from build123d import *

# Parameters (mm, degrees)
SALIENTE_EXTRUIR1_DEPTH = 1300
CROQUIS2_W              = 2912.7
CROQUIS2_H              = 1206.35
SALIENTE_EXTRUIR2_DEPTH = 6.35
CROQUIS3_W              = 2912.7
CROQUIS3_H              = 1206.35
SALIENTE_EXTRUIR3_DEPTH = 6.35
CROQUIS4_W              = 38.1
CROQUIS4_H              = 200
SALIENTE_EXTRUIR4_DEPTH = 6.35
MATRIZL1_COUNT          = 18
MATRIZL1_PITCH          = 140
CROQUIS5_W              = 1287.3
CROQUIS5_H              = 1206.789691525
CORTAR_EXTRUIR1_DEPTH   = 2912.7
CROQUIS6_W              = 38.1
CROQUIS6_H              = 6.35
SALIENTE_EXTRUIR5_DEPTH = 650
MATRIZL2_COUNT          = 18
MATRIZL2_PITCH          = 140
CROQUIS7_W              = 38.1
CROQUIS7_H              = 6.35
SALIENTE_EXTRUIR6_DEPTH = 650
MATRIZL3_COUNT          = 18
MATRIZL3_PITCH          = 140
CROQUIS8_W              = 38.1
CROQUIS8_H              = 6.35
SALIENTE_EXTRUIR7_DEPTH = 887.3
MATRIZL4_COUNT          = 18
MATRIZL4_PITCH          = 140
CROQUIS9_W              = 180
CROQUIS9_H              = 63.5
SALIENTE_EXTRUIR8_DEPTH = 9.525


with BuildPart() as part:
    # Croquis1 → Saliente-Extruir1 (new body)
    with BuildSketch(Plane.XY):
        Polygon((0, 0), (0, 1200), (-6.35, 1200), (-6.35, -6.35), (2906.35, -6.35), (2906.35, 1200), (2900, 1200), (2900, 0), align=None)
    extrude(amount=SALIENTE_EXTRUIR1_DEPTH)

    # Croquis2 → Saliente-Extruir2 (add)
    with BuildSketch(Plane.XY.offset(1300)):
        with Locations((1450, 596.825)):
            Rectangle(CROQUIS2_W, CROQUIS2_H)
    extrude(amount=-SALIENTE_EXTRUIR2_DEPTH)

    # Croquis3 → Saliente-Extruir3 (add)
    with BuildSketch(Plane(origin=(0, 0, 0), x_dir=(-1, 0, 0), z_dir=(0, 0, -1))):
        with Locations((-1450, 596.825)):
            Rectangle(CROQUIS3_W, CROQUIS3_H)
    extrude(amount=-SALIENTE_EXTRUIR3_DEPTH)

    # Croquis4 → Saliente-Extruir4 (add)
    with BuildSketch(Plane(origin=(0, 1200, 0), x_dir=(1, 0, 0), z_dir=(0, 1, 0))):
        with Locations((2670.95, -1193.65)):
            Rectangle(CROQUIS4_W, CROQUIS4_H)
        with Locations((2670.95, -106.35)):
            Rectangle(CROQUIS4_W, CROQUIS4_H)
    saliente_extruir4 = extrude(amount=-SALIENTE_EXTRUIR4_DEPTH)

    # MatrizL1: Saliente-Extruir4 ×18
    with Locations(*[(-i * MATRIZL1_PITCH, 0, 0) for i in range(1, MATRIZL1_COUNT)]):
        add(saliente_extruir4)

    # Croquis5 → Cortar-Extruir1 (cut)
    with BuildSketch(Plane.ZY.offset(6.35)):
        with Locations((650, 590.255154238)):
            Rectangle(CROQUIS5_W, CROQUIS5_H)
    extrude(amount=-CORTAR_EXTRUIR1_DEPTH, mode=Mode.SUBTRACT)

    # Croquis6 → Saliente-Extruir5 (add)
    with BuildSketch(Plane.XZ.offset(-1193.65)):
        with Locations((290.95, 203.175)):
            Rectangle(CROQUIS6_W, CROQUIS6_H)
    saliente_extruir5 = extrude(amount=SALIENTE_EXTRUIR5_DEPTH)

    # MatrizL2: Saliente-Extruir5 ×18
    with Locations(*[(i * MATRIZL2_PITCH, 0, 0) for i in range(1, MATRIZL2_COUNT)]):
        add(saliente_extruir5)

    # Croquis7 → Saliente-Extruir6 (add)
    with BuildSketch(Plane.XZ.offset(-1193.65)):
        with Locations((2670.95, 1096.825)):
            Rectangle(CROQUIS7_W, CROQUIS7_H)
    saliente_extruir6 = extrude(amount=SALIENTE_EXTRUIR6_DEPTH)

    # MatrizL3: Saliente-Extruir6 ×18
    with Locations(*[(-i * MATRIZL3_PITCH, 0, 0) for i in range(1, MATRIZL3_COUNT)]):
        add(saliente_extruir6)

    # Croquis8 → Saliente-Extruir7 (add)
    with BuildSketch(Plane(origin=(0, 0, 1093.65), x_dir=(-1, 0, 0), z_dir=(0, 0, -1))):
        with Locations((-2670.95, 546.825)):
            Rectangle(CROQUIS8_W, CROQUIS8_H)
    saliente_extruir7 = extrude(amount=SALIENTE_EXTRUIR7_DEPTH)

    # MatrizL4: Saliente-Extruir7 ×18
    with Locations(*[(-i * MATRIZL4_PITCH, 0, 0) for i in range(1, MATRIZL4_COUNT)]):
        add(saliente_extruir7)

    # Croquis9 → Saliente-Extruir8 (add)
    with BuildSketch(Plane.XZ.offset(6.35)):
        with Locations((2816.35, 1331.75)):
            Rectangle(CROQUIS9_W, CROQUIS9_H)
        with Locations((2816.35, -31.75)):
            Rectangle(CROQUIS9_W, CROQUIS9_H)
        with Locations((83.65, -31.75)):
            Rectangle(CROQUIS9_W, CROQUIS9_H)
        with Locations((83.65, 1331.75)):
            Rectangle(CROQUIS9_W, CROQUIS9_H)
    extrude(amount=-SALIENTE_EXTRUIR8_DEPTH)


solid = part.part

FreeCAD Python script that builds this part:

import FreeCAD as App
import Part
import Sketcher

doc = App.newDocument("Part")
body = doc.addObject("PartDesign::Body", "Body")

sketch1 = doc.addObject("Sketcher::SketchObject", "Sketch")
body.addObject(sketch1)
sketch1.AttachmentSupport = (doc.XY_Plane, [""])
sketch1.MapMode = "FlatFace"
sketch1.addGeometry([
    Part.LineSegment(App.Vector(0, 0, 0), App.Vector(0, 1200, 0)),
    Part.LineSegment(App.Vector(0, 1200, 0), App.Vector(-6, 1200, 0)),
    Part.LineSegment(App.Vector(-6, 1200, 0), App.Vector(-6, -6, 0)),
    Part.LineSegment(App.Vector(-6, -6, 0), App.Vector(2906, -6, 0)),
    Part.LineSegment(App.Vector(2906, -6, 0), App.Vector(2906, 1200, 0)),
    Part.LineSegment(App.Vector(2906, 1200, 0), App.Vector(2900, 1200, 0)),
    Part.LineSegment(App.Vector(2900, 1200, 0), App.Vector(2900, 0, 0)),
    Part.LineSegment(App.Vector(2900, 0, 0), App.Vector(0, 0, 0)),
], False)
sketch1.addConstraint([
    Sketcher.Constraint("Coincident", 0, 2, 1, 1),
    Sketcher.Constraint("Coincident", 1, 2, 2, 1),
    Sketcher.Constraint("Coincident", 2, 2, 3, 1),
    Sketcher.Constraint("Coincident", 3, 2, 4, 1),
    Sketcher.Constraint("Coincident", 4, 2, 5, 1),
    Sketcher.Constraint("Coincident", 5, 2, 6, 1),
    Sketcher.Constraint("Coincident", 6, 2, 7, 1),
    Sketcher.Constraint("Coincident", 7, 2, 0, 1),
    Sketcher.Constraint("Vertical", 0),
    Sketcher.Constraint("Horizontal", 1),
    Sketcher.Constraint("Vertical", 2),
    Sketcher.Constraint("Horizontal", 3),
    Sketcher.Constraint("Vertical", 4),
    Sketcher.Constraint("Horizontal", 5),
    Sketcher.Constraint("Vertical", 6),
    Sketcher.Constraint("Horizontal", 7),
    Sketcher.Constraint("Coincident", 7, 2, -1, 1),
    Sketcher.Constraint("Horizontal", 1, 2, 4, 2),
    Sketcher.Constraint("Equal", 1, 5),
    Sketcher.Constraint("DistanceX", 7, 2, 7, 1, 2900.0),
    Sketcher.Constraint("DistanceY", 0, 1, 0, 2, 1200.0),
    Sketcher.Constraint("DistanceX", 3, 1, 3, 2, 2912.7),
    Sketcher.Constraint("DistanceY", 2, 2, 2, 1, 1206.35),
])
pad1 = doc.addObject("PartDesign::Pad", "Pad")
body.addObject(pad1)
pad1.Profile = sketch1
pad1.Length = 1300

sketch2 = doc.addObject("Sketcher::SketchObject", "Sketch001")
body.addObject(sketch2)
sketch2.AttachmentSupport = (doc.XY_Plane, [""])
sketch2.MapMode = "FlatFace"
sketch2.AttachmentOffset = App.Placement(App.Vector(0, 0, 1300), App.Rotation())
sketch2.addGeometry([
    Part.LineSegment(App.Vector(-6, 1200, 0), App.Vector(-6, -6, 0)),
    Part.LineSegment(App.Vector(-6, -6, 0), App.Vector(2906, -6, 0)),
    Part.LineSegment(App.Vector(2906, -6, 0), App.Vector(2906, 1200, 0)),
    Part.LineSegment(App.Vector(2906, 1200, 0), App.Vector(-6, 1200, 0)),
], False)
sketch2.addConstraint([
    Sketcher.Constraint("Coincident", 0, 2, 1, 1),
    Sketcher.Constraint("Coincident", 1, 2, 2, 1),
    Sketcher.Constraint("Coincident", 2, 2, 3, 1),
    Sketcher.Constraint("Coincident", 3, 2, 0, 1),
    Sketcher.Constraint("Vertical", 0),
    Sketcher.Constraint("Horizontal", 1),
    Sketcher.Constraint("Vertical", 2),
    Sketcher.Constraint("Horizontal", 3),
    Sketcher.Constraint("DistanceX", 1, 1, 1, 2, 2912.7),
    Sketcher.Constraint("DistanceY", -1, 1, 2, 2, 1200.0),
    Sketcher.Constraint("DistanceY", 0, 2, 0, 1, 1206.35),
    Sketcher.Constraint("DistanceX", 0, 2, -1, 1, 6.35),
])
pad2 = doc.addObject("PartDesign::Pad", "Pad001")
body.addObject(pad2)
pad2.Profile = sketch2
pad2.Length = 6.35
pad2.Reversed = True

sketch3 = doc.addObject("Sketcher::SketchObject", "Sketch002")
body.addObject(sketch3)
sketch3.AttachmentSupport = (doc.XY_Plane, [""])
sketch3.MapMode = "FlatFace"
sketch3.addGeometry([
    Part.LineSegment(App.Vector(2906, 1200, 0), App.Vector(2906, -6, 0)),
    Part.LineSegment(App.Vector(2906, -6, 0), App.Vector(-6, -6, 0)),
    Part.LineSegment(App.Vector(-6, -6, 0), App.Vector(-6, 1200, 0)),
    Part.LineSegment(App.Vector(-6, 1200, 0), App.Vector(2906, 1200, 0)),
], False)
sketch3.addConstraint([
    Sketcher.Constraint("Coincident", 0, 2, 1, 1),
    Sketcher.Constraint("Coincident", 1, 2, 2, 1),
    Sketcher.Constraint("Coincident", 2, 2, 3, 1),
    Sketcher.Constraint("Coincident", 3, 2, 0, 1),
    Sketcher.Constraint("Vertical", 0),
    Sketcher.Constraint("Horizontal", 1),
    Sketcher.Constraint("Vertical", 2),
    Sketcher.Constraint("Horizontal", 3),
    Sketcher.Constraint("DistanceX", 1, 2, 1, 1, 2912.7),
    Sketcher.Constraint("DistanceY", -1, 1, 2, 2, 1200.0),
    Sketcher.Constraint("DistanceY", 0, 2, 0, 1, 1206.35),
    Sketcher.Constraint("DistanceX", -1, 1, 0, 2, 2906.35),
])
pad3 = doc.addObject("PartDesign::Pad", "Pad002")
body.addObject(pad3)
pad3.Profile = sketch3
pad3.Length = 6.35

sketch4 = doc.addObject("Sketcher::SketchObject", "Sketch003")
body.addObject(sketch4)
sketch4.AttachmentSupport = (doc.XZ_Plane, [""])
sketch4.MapMode = "FlatFace"
sketch4.AttachmentOffset = App.Placement(App.Vector(0, 0, -1200), App.Rotation())
sketch4.addGeometry([
    Part.LineSegment(App.Vector(2652, 1094, 0), App.Vector(2652, 1294, 0)),
    Part.LineSegment(App.Vector(2652, 1294, 0), App.Vector(2690, 1294, 0)),
    Part.LineSegment(App.Vector(2690, 1294, 0), App.Vector(2690, 1094, 0)),
    Part.LineSegment(App.Vector(2690, 1094, 0), App.Vector(2652, 1094, 0)),
    Part.LineSegment(App.Vector(2652, 6, 0), App.Vector(2652, 206, 0)),
    Part.LineSegment(App.Vector(2652, 206, 0), App.Vector(2690, 206, 0)),
    Part.LineSegment(App.Vector(2690, 206, 0), App.Vector(2690, 6, 0)),
    Part.LineSegment(App.Vector(2690, 6, 0), App.Vector(2652, 6, 0)),
], False)
sketch4.addConstraint([
    Sketcher.Constraint("Coincident", 0, 2, 1, 1),
    Sketcher.Constraint("Coincident", 1, 2, 2, 1),
    Sketcher.Constraint("Coincident", 2, 2, 3, 1),
    Sketcher.Constraint("Coincident", 3, 2, 0, 1),
    Sketcher.Constraint("Coincident", 4, 2, 5, 1),
    Sketcher.Constraint("Coincident", 5, 2, 6, 1),
    Sketcher.Constraint("Coincident", 6, 2, 7, 1),
    Sketcher.Constraint("Coincident", 7, 2, 4, 1),
    Sketcher.Constraint("Vertical", 0),
    Sketcher.Constraint("Horizontal", 1),
    Sketcher.Constraint("Vertical", 2),
    Sketcher.Constraint("Horizontal", 3),
    Sketcher.Constraint("Vertical", 4),
    Sketcher.Constraint("Horizontal", 5),
    Sketcher.Constraint("Vertical", 6),
    Sketcher.Constraint("Horizontal", 7),
    Sketcher.Constraint("Vertical", 3, 2, 4, 2),
    Sketcher.Constraint("Vertical", 2, 2, 5, 2),
    Sketcher.Constraint("Equal", 2, 4),
    Sketcher.Constraint("DistanceY", 0, 1, 0, 2, 200.0),
    Sketcher.Constraint("DistanceX", 1, 1, 1, 2, 38.1),
    Sketcher.Constraint("DistanceX", -1, 1, 1, 2, 2690.0),
    Sketcher.Constraint("DistanceY", 4, 2, 3, 2, 887.3),
    Sketcher.Constraint("DistanceY", -1, 1, 0, 2, 1293.65),
])
pad4 = doc.addObject("PartDesign::Pad", "Pad003")
body.addObject(pad4)
pad4.Profile = sketch4
pad4.Length = 6.35
doc.recompute()

linearpattern = doc.addObject("PartDesign::LinearPattern", "LinearPattern")
body.addObject(linearpattern)
linearpattern.Originals = [pad4]
linearpattern.Direction = (doc.X_Axis, [""])
linearpattern.Mode = "offset"
linearpattern.Offset = 140
linearpattern.Occurrences = 18
linearpattern.Reversed = True
body.Tip = linearpattern

sketch5 = doc.addObject("Sketcher::SketchObject", "Sketch004")
body.addObject(sketch5)
sketch5.AttachmentSupport = (doc.YZ_Plane, [""])
sketch5.MapMode = "FlatFace"
sketch5.AttachmentOffset = App.Placement(App.Vector(0, 0, -6.35), App.Rotation())
sketch5.addGeometry([
    Part.LineSegment(App.Vector(1194, 6, 0), App.Vector(-13, 6, 0)),
    Part.LineSegment(App.Vector(-13, 6, 0), App.Vector(-13, 1294, 0)),
    Part.LineSegment(App.Vector(-13, 1294, 0), App.Vector(1194, 1294, 0)),
    Part.LineSegment(App.Vector(1194, 1294, 0), App.Vector(1194, 6, 0)),
], False)
sketch5.addConstraint([
    Sketcher.Constraint("Coincident", 0, 2, 1, 1),
    Sketcher.Constraint("Coincident", 1, 2, 2, 1),
    Sketcher.Constraint("Coincident", 2, 2, 3, 1),
    Sketcher.Constraint("Coincident", 3, 2, 0, 1),
    Sketcher.Constraint("Horizontal", 0),
    Sketcher.Constraint("Vertical", 1),
    Sketcher.Constraint("Horizontal", 2),
    Sketcher.Constraint("Vertical", 3),
    Sketcher.Constraint("DistanceY", 1, 1, 1, 2, 1287.3),
    Sketcher.Constraint("DistanceY", -1, 1, 0, 2, 6.35),
    Sketcher.Constraint("DistanceX", -1, 1, 2, 2, 1193.65),
    Sketcher.Constraint("DistanceX", 0, 2, 0, 1, 1206.789692),
])
pocket1 = doc.addObject("PartDesign::Pocket", "Pocket")
body.addObject(pocket1)
pocket1.Profile = sketch5
pocket1.Length = 2912.7
pocket1.Reversed = True

sketch6 = doc.addObject("Sketcher::SketchObject", "Sketch005")
body.addObject(sketch6)
sketch6.AttachmentSupport = (doc.XZ_Plane, [""])
sketch6.MapMode = "FlatFace"
sketch6.AttachmentOffset = App.Placement(App.Vector(0, 0, -1193.65), App.Rotation())
sketch6.addGeometry([
    Part.LineSegment(App.Vector(272, 206, 0), App.Vector(272, 200, 0)),
    Part.LineSegment(App.Vector(272, 200, 0), App.Vector(310, 200, 0)),
    Part.LineSegment(App.Vector(310, 200, 0), App.Vector(310, 206, 0)),
    Part.LineSegment(App.Vector(310, 206, 0), App.Vector(272, 206, 0)),
], False)
sketch6.addConstraint([
    Sketcher.Constraint("Coincident", 0, 2, 1, 1),
    Sketcher.Constraint("Coincident", 1, 2, 2, 1),
    Sketcher.Constraint("Coincident", 2, 2, 3, 1),
    Sketcher.Constraint("Coincident", 3, 2, 0, 1),
    Sketcher.Constraint("Vertical", 0),
    Sketcher.Constraint("Horizontal", 1),
    Sketcher.Constraint("Vertical", 2),
    Sketcher.Constraint("Horizontal", 3),
    Sketcher.Constraint("DistanceX", 1, 1, 1, 2, 38.1),
    Sketcher.Constraint("DistanceY", -1, 1, 0, 2, 200.0),
    Sketcher.Constraint("DistanceX", -1, 1, 1, 2, 310.0),
    Sketcher.Constraint("DistanceY", 0, 2, 0, 1, 6.35),
])
pad5 = doc.addObject("PartDesign::Pad", "Pad004")
body.addObject(pad5)
pad5.Profile = sketch6
pad5.Length = 650
doc.recompute()

linearpattern2 = doc.addObject("PartDesign::LinearPattern", "LinearPattern001")
body.addObject(linearpattern2)
linearpattern2.Originals = [pad5]
linearpattern2.Direction = (doc.X_Axis, [""])
linearpattern2.Mode = "offset"
linearpattern2.Offset = 140
linearpattern2.Occurrences = 18
body.Tip = linearpattern2

sketch7 = doc.addObject("Sketcher::SketchObject", "Sketch006")
body.addObject(sketch7)
sketch7.AttachmentSupport = (doc.XZ_Plane, [""])
sketch7.MapMode = "FlatFace"
sketch7.AttachmentOffset = App.Placement(App.Vector(0, 0, -1193.65), App.Rotation())
sketch7.addGeometry([
    Part.LineSegment(App.Vector(2652, 1100, 0), App.Vector(2652, 1094, 0)),
    Part.LineSegment(App.Vector(2652, 1094, 0), App.Vector(2690, 1094, 0)),
    Part.LineSegment(App.Vector(2690, 1094, 0), App.Vector(2690, 1100, 0)),
    Part.LineSegment(App.Vector(2690, 1100, 0), App.Vector(2652, 1100, 0)),
], False)
sketch7.addConstraint([
    Sketcher.Constraint("Coincident", 0, 2, 1, 1),
    Sketcher.Constraint("Coincident", 1, 2, 2, 1),
    Sketcher.Constraint("Coincident", 2, 2, 3, 1),
    Sketcher.Constraint("Coincident", 3, 2, 0, 1),
    Sketcher.Constraint("Vertical", 0),
    Sketcher.Constraint("Horizontal", 1),
    Sketcher.Constraint("Vertical", 2),
    Sketcher.Constraint("Horizontal", 3),
    Sketcher.Constraint("DistanceX", 1, 1, 1, 2, 38.1),
    Sketcher.Constraint("DistanceX", -1, 1, 1, 2, 2690.0),
    Sketcher.Constraint("DistanceY", -1, 1, 2, 2, 1100.0),
    Sketcher.Constraint("DistanceY", 0, 2, 0, 1, 6.35),
])
pad6 = doc.addObject("PartDesign::Pad", "Pad005")
body.addObject(pad6)
pad6.Profile = sketch7
pad6.Length = 650
doc.recompute()

linearpattern3 = doc.addObject("PartDesign::LinearPattern", "LinearPattern002")
body.addObject(linearpattern3)
linearpattern3.Originals = [pad6]
linearpattern3.Direction = (doc.X_Axis, [""])
linearpattern3.Mode = "offset"
linearpattern3.Offset = 140
linearpattern3.Occurrences = 18
linearpattern3.Reversed = True
body.Tip = linearpattern3

sketch8 = doc.addObject("Sketcher::SketchObject", "Sketch007")
body.addObject(sketch8)
sketch8.AttachmentSupport = (doc.XY_Plane, [""])
sketch8.MapMode = "FlatFace"
sketch8.AttachmentOffset = App.Placement(App.Vector(0, 0, 1093.65), App.Rotation())
sketch8.addGeometry([
    Part.LineSegment(App.Vector(2690, 550, 0), App.Vector(2690, 544, 0)),
    Part.LineSegment(App.Vector(2690, 544, 0), App.Vector(2652, 544, 0)),
    Part.LineSegment(App.Vector(2652, 544, 0), App.Vector(2652, 550, 0)),
    Part.LineSegment(App.Vector(2652, 550, 0), App.Vector(2690, 550, 0)),
], False)
sketch8.addConstraint([
    Sketcher.Constraint("Coincident", 0, 2, 1, 1),
    Sketcher.Constraint("Coincident", 1, 2, 2, 1),
    Sketcher.Constraint("Coincident", 2, 2, 3, 1),
    Sketcher.Constraint("Coincident", 3, 2, 0, 1),
    Sketcher.Constraint("Vertical", 0),
    Sketcher.Constraint("Horizontal", 1),
    Sketcher.Constraint("Vertical", 2),
    Sketcher.Constraint("Horizontal", 3),
    Sketcher.Constraint("DistanceX", 1, 2, 1, 1, 38.1),
    Sketcher.Constraint("DistanceX", -1, 1, 0, 2, 2690.0),
    Sketcher.Constraint("DistanceY", -1, 1, 2, 2, 550.0),
    Sketcher.Constraint("DistanceY", 0, 2, 0, 1, 6.35),
])
pad7 = doc.addObject("PartDesign::Pad", "Pad006")
body.addObject(pad7)
pad7.Profile = sketch8
pad7.Length = 887.3
pad7.Reversed = True
doc.recompute()

linearpattern4 = doc.addObject("PartDesign::LinearPattern", "LinearPattern003")
body.addObject(linearpattern4)
linearpattern4.Originals = [pad7]
linearpattern4.Direction = (doc.X_Axis, [""])
linearpattern4.Mode = "offset"
linearpattern4.Offset = 140
linearpattern4.Occurrences = 18
linearpattern4.Reversed = True
body.Tip = linearpattern4

sketch9 = doc.addObject("Sketcher::SketchObject", "Sketch008")
body.addObject(sketch9)
sketch9.AttachmentSupport = (doc.XZ_Plane, [""])
sketch9.MapMode = "FlatFace"
sketch9.AttachmentOffset = App.Placement(App.Vector(0, 0, 6.35), App.Rotation())
sketch9.addGeometry([
    Part.LineSegment(App.Vector(2726, 1364, 0), App.Vector(2726, 1300, 0)),
    Part.LineSegment(App.Vector(2726, 1300, 0), App.Vector(2906, 1300, 0)),
    Part.LineSegment(App.Vector(2906, 1300, 0), App.Vector(2906, 1364, 0)),
    Part.LineSegment(App.Vector(2906, 1364, 0), App.Vector(2726, 1364, 0)),
    Part.LineSegment(App.Vector(2726, 0, 0), App.Vector(2726, -64, 0)),
    Part.LineSegment(App.Vector(2726, -64, 0), App.Vector(2906, -64, 0)),
    Part.LineSegment(App.Vector(2906, -64, 0), App.Vector(2906, 0, 0)),
    Part.LineSegment(App.Vector(2906, 0, 0), App.Vector(2726, 0, 0)),
    Part.LineSegment(App.Vector(-6, 0, 0), App.Vector(-6, -64, 0)),
    Part.LineSegment(App.Vector(-6, -64, 0), App.Vector(174, -64, 0)),
    Part.LineSegment(App.Vector(174, -64, 0), App.Vector(174, 0, 0)),
    Part.LineSegment(App.Vector(174, 0, 0), App.Vector(-6, 0, 0)),
    Part.LineSegment(App.Vector(-6, 1364, 0), App.Vector(-6, 1300, 0)),
    Part.LineSegment(App.Vector(-6, 1300, 0), App.Vector(174, 1300, 0)),
    Part.LineSegment(App.Vector(174, 1300, 0), App.Vector(174, 1364, 0)),
    Part.LineSegment(App.Vector(174, 1364, 0), App.Vector(-6, 1364, 0)),
], False)
sketch9.addConstraint([
    Sketcher.Constraint("Coincident", 0, 2, 1, 1),
    Sketcher.Constraint("Coincident", 1, 2, 2, 1),
    Sketcher.Constraint("Coincident", 2, 2, 3, 1),
    Sketcher.Constraint("Coincident", 3, 2, 0, 1),
    Sketcher.Constraint("Coincident", 4, 2, 5, 1),
    Sketcher.Constraint("Coincident", 5, 2, 6, 1),
    Sketcher.Constraint("Coincident", 6, 2, 7, 1),
    Sketcher.Constraint("Coincident", 7, 2, 4, 1),
    Sketcher.Constraint("Coincident", 8, 2, 9, 1),
    Sketcher.Constraint("Coincident", 9, 2, 10, 1),
    Sketcher.Constraint("Coincident", 10, 2, 11, 1),
    Sketcher.Constraint("Coincident", 11, 2, 8, 1),
    Sketcher.Constraint("Coincident", 12, 2, 13, 1),
    Sketcher.Constraint("Coincident", 13, 2, 14, 1),
    Sketcher.Constraint("Coincident", 14, 2, 15, 1),
    Sketcher.Constraint("Coincident", 15, 2, 12, 1),
    Sketcher.Constraint("Vertical", 0),
    Sketcher.Constraint("Horizontal", 1),
    Sketcher.Constraint("Vertical", 2),
    Sketcher.Constraint("Horizontal", 3),
    Sketcher.Constraint("Vertical", 4),
    Sketcher.Constraint("Horizontal", 5),
    Sketcher.Constraint("Vertical", 6),
    Sketcher.Constraint("Horizontal", 7),
    Sketcher.Constraint("Vertical", 8),
    Sketcher.Constraint("Horizontal", 9),
    Sketcher.Constraint("Vertical", 10),
    Sketcher.Constraint("Horizontal", 11),
    Sketcher.Constraint("Vertical", 12),
    Sketcher.Constraint("Horizontal", 13),
    Sketcher.Constraint("Vertical", 14),
    Sketcher.Constraint("Horizontal", 15),
    Sketcher.Constraint("PointOnObject", 6, 2, -1),
    Sketcher.Constraint("PointOnObject", 10, 2, -1),
    Sketcher.Constraint("Horizontal", 5, 2, 8, 2),
    Sketcher.Constraint("Horizontal", 1, 2, 12, 2),
    Sketcher.Constraint("Horizontal", 3, 2, 14, 2),
    Sketcher.Constraint("Vertical", 3, 2, 4, 2),
    Sketcher.Constraint("Vertical", 2, 2, 5, 2),
    Sketcher.Constraint("Vertical", 11, 2, 12, 2),
    Sketcher.Constraint("Vertical", 10, 2, 13, 2),
    Sketcher.Constraint("Equal", 7, 9),
    Sketcher.Constraint("Equal", 2, 4),
    Sketcher.Constraint("DistanceX", 1, 1, 1, 2, 180.0),
    Sketcher.Constraint("DistanceY", 0, 2, 0, 1, 63.5),
    Sketcher.Constraint("DistanceY", -1, 1, 0, 2, 1300.0),
    Sketcher.Constraint("DistanceX", 8, 2, 4, 2, 2732.7),
    Sketcher.Constraint("DistanceX", -1, 1, 0, 2, 2726.35),
])
pad8 = doc.addObject("PartDesign::Pad", "Pad007")
body.addObject(pad8)
pad8.Profile = sketch9
pad8.Length = 9.525
pad8.Reversed = True

doc.recompute()
